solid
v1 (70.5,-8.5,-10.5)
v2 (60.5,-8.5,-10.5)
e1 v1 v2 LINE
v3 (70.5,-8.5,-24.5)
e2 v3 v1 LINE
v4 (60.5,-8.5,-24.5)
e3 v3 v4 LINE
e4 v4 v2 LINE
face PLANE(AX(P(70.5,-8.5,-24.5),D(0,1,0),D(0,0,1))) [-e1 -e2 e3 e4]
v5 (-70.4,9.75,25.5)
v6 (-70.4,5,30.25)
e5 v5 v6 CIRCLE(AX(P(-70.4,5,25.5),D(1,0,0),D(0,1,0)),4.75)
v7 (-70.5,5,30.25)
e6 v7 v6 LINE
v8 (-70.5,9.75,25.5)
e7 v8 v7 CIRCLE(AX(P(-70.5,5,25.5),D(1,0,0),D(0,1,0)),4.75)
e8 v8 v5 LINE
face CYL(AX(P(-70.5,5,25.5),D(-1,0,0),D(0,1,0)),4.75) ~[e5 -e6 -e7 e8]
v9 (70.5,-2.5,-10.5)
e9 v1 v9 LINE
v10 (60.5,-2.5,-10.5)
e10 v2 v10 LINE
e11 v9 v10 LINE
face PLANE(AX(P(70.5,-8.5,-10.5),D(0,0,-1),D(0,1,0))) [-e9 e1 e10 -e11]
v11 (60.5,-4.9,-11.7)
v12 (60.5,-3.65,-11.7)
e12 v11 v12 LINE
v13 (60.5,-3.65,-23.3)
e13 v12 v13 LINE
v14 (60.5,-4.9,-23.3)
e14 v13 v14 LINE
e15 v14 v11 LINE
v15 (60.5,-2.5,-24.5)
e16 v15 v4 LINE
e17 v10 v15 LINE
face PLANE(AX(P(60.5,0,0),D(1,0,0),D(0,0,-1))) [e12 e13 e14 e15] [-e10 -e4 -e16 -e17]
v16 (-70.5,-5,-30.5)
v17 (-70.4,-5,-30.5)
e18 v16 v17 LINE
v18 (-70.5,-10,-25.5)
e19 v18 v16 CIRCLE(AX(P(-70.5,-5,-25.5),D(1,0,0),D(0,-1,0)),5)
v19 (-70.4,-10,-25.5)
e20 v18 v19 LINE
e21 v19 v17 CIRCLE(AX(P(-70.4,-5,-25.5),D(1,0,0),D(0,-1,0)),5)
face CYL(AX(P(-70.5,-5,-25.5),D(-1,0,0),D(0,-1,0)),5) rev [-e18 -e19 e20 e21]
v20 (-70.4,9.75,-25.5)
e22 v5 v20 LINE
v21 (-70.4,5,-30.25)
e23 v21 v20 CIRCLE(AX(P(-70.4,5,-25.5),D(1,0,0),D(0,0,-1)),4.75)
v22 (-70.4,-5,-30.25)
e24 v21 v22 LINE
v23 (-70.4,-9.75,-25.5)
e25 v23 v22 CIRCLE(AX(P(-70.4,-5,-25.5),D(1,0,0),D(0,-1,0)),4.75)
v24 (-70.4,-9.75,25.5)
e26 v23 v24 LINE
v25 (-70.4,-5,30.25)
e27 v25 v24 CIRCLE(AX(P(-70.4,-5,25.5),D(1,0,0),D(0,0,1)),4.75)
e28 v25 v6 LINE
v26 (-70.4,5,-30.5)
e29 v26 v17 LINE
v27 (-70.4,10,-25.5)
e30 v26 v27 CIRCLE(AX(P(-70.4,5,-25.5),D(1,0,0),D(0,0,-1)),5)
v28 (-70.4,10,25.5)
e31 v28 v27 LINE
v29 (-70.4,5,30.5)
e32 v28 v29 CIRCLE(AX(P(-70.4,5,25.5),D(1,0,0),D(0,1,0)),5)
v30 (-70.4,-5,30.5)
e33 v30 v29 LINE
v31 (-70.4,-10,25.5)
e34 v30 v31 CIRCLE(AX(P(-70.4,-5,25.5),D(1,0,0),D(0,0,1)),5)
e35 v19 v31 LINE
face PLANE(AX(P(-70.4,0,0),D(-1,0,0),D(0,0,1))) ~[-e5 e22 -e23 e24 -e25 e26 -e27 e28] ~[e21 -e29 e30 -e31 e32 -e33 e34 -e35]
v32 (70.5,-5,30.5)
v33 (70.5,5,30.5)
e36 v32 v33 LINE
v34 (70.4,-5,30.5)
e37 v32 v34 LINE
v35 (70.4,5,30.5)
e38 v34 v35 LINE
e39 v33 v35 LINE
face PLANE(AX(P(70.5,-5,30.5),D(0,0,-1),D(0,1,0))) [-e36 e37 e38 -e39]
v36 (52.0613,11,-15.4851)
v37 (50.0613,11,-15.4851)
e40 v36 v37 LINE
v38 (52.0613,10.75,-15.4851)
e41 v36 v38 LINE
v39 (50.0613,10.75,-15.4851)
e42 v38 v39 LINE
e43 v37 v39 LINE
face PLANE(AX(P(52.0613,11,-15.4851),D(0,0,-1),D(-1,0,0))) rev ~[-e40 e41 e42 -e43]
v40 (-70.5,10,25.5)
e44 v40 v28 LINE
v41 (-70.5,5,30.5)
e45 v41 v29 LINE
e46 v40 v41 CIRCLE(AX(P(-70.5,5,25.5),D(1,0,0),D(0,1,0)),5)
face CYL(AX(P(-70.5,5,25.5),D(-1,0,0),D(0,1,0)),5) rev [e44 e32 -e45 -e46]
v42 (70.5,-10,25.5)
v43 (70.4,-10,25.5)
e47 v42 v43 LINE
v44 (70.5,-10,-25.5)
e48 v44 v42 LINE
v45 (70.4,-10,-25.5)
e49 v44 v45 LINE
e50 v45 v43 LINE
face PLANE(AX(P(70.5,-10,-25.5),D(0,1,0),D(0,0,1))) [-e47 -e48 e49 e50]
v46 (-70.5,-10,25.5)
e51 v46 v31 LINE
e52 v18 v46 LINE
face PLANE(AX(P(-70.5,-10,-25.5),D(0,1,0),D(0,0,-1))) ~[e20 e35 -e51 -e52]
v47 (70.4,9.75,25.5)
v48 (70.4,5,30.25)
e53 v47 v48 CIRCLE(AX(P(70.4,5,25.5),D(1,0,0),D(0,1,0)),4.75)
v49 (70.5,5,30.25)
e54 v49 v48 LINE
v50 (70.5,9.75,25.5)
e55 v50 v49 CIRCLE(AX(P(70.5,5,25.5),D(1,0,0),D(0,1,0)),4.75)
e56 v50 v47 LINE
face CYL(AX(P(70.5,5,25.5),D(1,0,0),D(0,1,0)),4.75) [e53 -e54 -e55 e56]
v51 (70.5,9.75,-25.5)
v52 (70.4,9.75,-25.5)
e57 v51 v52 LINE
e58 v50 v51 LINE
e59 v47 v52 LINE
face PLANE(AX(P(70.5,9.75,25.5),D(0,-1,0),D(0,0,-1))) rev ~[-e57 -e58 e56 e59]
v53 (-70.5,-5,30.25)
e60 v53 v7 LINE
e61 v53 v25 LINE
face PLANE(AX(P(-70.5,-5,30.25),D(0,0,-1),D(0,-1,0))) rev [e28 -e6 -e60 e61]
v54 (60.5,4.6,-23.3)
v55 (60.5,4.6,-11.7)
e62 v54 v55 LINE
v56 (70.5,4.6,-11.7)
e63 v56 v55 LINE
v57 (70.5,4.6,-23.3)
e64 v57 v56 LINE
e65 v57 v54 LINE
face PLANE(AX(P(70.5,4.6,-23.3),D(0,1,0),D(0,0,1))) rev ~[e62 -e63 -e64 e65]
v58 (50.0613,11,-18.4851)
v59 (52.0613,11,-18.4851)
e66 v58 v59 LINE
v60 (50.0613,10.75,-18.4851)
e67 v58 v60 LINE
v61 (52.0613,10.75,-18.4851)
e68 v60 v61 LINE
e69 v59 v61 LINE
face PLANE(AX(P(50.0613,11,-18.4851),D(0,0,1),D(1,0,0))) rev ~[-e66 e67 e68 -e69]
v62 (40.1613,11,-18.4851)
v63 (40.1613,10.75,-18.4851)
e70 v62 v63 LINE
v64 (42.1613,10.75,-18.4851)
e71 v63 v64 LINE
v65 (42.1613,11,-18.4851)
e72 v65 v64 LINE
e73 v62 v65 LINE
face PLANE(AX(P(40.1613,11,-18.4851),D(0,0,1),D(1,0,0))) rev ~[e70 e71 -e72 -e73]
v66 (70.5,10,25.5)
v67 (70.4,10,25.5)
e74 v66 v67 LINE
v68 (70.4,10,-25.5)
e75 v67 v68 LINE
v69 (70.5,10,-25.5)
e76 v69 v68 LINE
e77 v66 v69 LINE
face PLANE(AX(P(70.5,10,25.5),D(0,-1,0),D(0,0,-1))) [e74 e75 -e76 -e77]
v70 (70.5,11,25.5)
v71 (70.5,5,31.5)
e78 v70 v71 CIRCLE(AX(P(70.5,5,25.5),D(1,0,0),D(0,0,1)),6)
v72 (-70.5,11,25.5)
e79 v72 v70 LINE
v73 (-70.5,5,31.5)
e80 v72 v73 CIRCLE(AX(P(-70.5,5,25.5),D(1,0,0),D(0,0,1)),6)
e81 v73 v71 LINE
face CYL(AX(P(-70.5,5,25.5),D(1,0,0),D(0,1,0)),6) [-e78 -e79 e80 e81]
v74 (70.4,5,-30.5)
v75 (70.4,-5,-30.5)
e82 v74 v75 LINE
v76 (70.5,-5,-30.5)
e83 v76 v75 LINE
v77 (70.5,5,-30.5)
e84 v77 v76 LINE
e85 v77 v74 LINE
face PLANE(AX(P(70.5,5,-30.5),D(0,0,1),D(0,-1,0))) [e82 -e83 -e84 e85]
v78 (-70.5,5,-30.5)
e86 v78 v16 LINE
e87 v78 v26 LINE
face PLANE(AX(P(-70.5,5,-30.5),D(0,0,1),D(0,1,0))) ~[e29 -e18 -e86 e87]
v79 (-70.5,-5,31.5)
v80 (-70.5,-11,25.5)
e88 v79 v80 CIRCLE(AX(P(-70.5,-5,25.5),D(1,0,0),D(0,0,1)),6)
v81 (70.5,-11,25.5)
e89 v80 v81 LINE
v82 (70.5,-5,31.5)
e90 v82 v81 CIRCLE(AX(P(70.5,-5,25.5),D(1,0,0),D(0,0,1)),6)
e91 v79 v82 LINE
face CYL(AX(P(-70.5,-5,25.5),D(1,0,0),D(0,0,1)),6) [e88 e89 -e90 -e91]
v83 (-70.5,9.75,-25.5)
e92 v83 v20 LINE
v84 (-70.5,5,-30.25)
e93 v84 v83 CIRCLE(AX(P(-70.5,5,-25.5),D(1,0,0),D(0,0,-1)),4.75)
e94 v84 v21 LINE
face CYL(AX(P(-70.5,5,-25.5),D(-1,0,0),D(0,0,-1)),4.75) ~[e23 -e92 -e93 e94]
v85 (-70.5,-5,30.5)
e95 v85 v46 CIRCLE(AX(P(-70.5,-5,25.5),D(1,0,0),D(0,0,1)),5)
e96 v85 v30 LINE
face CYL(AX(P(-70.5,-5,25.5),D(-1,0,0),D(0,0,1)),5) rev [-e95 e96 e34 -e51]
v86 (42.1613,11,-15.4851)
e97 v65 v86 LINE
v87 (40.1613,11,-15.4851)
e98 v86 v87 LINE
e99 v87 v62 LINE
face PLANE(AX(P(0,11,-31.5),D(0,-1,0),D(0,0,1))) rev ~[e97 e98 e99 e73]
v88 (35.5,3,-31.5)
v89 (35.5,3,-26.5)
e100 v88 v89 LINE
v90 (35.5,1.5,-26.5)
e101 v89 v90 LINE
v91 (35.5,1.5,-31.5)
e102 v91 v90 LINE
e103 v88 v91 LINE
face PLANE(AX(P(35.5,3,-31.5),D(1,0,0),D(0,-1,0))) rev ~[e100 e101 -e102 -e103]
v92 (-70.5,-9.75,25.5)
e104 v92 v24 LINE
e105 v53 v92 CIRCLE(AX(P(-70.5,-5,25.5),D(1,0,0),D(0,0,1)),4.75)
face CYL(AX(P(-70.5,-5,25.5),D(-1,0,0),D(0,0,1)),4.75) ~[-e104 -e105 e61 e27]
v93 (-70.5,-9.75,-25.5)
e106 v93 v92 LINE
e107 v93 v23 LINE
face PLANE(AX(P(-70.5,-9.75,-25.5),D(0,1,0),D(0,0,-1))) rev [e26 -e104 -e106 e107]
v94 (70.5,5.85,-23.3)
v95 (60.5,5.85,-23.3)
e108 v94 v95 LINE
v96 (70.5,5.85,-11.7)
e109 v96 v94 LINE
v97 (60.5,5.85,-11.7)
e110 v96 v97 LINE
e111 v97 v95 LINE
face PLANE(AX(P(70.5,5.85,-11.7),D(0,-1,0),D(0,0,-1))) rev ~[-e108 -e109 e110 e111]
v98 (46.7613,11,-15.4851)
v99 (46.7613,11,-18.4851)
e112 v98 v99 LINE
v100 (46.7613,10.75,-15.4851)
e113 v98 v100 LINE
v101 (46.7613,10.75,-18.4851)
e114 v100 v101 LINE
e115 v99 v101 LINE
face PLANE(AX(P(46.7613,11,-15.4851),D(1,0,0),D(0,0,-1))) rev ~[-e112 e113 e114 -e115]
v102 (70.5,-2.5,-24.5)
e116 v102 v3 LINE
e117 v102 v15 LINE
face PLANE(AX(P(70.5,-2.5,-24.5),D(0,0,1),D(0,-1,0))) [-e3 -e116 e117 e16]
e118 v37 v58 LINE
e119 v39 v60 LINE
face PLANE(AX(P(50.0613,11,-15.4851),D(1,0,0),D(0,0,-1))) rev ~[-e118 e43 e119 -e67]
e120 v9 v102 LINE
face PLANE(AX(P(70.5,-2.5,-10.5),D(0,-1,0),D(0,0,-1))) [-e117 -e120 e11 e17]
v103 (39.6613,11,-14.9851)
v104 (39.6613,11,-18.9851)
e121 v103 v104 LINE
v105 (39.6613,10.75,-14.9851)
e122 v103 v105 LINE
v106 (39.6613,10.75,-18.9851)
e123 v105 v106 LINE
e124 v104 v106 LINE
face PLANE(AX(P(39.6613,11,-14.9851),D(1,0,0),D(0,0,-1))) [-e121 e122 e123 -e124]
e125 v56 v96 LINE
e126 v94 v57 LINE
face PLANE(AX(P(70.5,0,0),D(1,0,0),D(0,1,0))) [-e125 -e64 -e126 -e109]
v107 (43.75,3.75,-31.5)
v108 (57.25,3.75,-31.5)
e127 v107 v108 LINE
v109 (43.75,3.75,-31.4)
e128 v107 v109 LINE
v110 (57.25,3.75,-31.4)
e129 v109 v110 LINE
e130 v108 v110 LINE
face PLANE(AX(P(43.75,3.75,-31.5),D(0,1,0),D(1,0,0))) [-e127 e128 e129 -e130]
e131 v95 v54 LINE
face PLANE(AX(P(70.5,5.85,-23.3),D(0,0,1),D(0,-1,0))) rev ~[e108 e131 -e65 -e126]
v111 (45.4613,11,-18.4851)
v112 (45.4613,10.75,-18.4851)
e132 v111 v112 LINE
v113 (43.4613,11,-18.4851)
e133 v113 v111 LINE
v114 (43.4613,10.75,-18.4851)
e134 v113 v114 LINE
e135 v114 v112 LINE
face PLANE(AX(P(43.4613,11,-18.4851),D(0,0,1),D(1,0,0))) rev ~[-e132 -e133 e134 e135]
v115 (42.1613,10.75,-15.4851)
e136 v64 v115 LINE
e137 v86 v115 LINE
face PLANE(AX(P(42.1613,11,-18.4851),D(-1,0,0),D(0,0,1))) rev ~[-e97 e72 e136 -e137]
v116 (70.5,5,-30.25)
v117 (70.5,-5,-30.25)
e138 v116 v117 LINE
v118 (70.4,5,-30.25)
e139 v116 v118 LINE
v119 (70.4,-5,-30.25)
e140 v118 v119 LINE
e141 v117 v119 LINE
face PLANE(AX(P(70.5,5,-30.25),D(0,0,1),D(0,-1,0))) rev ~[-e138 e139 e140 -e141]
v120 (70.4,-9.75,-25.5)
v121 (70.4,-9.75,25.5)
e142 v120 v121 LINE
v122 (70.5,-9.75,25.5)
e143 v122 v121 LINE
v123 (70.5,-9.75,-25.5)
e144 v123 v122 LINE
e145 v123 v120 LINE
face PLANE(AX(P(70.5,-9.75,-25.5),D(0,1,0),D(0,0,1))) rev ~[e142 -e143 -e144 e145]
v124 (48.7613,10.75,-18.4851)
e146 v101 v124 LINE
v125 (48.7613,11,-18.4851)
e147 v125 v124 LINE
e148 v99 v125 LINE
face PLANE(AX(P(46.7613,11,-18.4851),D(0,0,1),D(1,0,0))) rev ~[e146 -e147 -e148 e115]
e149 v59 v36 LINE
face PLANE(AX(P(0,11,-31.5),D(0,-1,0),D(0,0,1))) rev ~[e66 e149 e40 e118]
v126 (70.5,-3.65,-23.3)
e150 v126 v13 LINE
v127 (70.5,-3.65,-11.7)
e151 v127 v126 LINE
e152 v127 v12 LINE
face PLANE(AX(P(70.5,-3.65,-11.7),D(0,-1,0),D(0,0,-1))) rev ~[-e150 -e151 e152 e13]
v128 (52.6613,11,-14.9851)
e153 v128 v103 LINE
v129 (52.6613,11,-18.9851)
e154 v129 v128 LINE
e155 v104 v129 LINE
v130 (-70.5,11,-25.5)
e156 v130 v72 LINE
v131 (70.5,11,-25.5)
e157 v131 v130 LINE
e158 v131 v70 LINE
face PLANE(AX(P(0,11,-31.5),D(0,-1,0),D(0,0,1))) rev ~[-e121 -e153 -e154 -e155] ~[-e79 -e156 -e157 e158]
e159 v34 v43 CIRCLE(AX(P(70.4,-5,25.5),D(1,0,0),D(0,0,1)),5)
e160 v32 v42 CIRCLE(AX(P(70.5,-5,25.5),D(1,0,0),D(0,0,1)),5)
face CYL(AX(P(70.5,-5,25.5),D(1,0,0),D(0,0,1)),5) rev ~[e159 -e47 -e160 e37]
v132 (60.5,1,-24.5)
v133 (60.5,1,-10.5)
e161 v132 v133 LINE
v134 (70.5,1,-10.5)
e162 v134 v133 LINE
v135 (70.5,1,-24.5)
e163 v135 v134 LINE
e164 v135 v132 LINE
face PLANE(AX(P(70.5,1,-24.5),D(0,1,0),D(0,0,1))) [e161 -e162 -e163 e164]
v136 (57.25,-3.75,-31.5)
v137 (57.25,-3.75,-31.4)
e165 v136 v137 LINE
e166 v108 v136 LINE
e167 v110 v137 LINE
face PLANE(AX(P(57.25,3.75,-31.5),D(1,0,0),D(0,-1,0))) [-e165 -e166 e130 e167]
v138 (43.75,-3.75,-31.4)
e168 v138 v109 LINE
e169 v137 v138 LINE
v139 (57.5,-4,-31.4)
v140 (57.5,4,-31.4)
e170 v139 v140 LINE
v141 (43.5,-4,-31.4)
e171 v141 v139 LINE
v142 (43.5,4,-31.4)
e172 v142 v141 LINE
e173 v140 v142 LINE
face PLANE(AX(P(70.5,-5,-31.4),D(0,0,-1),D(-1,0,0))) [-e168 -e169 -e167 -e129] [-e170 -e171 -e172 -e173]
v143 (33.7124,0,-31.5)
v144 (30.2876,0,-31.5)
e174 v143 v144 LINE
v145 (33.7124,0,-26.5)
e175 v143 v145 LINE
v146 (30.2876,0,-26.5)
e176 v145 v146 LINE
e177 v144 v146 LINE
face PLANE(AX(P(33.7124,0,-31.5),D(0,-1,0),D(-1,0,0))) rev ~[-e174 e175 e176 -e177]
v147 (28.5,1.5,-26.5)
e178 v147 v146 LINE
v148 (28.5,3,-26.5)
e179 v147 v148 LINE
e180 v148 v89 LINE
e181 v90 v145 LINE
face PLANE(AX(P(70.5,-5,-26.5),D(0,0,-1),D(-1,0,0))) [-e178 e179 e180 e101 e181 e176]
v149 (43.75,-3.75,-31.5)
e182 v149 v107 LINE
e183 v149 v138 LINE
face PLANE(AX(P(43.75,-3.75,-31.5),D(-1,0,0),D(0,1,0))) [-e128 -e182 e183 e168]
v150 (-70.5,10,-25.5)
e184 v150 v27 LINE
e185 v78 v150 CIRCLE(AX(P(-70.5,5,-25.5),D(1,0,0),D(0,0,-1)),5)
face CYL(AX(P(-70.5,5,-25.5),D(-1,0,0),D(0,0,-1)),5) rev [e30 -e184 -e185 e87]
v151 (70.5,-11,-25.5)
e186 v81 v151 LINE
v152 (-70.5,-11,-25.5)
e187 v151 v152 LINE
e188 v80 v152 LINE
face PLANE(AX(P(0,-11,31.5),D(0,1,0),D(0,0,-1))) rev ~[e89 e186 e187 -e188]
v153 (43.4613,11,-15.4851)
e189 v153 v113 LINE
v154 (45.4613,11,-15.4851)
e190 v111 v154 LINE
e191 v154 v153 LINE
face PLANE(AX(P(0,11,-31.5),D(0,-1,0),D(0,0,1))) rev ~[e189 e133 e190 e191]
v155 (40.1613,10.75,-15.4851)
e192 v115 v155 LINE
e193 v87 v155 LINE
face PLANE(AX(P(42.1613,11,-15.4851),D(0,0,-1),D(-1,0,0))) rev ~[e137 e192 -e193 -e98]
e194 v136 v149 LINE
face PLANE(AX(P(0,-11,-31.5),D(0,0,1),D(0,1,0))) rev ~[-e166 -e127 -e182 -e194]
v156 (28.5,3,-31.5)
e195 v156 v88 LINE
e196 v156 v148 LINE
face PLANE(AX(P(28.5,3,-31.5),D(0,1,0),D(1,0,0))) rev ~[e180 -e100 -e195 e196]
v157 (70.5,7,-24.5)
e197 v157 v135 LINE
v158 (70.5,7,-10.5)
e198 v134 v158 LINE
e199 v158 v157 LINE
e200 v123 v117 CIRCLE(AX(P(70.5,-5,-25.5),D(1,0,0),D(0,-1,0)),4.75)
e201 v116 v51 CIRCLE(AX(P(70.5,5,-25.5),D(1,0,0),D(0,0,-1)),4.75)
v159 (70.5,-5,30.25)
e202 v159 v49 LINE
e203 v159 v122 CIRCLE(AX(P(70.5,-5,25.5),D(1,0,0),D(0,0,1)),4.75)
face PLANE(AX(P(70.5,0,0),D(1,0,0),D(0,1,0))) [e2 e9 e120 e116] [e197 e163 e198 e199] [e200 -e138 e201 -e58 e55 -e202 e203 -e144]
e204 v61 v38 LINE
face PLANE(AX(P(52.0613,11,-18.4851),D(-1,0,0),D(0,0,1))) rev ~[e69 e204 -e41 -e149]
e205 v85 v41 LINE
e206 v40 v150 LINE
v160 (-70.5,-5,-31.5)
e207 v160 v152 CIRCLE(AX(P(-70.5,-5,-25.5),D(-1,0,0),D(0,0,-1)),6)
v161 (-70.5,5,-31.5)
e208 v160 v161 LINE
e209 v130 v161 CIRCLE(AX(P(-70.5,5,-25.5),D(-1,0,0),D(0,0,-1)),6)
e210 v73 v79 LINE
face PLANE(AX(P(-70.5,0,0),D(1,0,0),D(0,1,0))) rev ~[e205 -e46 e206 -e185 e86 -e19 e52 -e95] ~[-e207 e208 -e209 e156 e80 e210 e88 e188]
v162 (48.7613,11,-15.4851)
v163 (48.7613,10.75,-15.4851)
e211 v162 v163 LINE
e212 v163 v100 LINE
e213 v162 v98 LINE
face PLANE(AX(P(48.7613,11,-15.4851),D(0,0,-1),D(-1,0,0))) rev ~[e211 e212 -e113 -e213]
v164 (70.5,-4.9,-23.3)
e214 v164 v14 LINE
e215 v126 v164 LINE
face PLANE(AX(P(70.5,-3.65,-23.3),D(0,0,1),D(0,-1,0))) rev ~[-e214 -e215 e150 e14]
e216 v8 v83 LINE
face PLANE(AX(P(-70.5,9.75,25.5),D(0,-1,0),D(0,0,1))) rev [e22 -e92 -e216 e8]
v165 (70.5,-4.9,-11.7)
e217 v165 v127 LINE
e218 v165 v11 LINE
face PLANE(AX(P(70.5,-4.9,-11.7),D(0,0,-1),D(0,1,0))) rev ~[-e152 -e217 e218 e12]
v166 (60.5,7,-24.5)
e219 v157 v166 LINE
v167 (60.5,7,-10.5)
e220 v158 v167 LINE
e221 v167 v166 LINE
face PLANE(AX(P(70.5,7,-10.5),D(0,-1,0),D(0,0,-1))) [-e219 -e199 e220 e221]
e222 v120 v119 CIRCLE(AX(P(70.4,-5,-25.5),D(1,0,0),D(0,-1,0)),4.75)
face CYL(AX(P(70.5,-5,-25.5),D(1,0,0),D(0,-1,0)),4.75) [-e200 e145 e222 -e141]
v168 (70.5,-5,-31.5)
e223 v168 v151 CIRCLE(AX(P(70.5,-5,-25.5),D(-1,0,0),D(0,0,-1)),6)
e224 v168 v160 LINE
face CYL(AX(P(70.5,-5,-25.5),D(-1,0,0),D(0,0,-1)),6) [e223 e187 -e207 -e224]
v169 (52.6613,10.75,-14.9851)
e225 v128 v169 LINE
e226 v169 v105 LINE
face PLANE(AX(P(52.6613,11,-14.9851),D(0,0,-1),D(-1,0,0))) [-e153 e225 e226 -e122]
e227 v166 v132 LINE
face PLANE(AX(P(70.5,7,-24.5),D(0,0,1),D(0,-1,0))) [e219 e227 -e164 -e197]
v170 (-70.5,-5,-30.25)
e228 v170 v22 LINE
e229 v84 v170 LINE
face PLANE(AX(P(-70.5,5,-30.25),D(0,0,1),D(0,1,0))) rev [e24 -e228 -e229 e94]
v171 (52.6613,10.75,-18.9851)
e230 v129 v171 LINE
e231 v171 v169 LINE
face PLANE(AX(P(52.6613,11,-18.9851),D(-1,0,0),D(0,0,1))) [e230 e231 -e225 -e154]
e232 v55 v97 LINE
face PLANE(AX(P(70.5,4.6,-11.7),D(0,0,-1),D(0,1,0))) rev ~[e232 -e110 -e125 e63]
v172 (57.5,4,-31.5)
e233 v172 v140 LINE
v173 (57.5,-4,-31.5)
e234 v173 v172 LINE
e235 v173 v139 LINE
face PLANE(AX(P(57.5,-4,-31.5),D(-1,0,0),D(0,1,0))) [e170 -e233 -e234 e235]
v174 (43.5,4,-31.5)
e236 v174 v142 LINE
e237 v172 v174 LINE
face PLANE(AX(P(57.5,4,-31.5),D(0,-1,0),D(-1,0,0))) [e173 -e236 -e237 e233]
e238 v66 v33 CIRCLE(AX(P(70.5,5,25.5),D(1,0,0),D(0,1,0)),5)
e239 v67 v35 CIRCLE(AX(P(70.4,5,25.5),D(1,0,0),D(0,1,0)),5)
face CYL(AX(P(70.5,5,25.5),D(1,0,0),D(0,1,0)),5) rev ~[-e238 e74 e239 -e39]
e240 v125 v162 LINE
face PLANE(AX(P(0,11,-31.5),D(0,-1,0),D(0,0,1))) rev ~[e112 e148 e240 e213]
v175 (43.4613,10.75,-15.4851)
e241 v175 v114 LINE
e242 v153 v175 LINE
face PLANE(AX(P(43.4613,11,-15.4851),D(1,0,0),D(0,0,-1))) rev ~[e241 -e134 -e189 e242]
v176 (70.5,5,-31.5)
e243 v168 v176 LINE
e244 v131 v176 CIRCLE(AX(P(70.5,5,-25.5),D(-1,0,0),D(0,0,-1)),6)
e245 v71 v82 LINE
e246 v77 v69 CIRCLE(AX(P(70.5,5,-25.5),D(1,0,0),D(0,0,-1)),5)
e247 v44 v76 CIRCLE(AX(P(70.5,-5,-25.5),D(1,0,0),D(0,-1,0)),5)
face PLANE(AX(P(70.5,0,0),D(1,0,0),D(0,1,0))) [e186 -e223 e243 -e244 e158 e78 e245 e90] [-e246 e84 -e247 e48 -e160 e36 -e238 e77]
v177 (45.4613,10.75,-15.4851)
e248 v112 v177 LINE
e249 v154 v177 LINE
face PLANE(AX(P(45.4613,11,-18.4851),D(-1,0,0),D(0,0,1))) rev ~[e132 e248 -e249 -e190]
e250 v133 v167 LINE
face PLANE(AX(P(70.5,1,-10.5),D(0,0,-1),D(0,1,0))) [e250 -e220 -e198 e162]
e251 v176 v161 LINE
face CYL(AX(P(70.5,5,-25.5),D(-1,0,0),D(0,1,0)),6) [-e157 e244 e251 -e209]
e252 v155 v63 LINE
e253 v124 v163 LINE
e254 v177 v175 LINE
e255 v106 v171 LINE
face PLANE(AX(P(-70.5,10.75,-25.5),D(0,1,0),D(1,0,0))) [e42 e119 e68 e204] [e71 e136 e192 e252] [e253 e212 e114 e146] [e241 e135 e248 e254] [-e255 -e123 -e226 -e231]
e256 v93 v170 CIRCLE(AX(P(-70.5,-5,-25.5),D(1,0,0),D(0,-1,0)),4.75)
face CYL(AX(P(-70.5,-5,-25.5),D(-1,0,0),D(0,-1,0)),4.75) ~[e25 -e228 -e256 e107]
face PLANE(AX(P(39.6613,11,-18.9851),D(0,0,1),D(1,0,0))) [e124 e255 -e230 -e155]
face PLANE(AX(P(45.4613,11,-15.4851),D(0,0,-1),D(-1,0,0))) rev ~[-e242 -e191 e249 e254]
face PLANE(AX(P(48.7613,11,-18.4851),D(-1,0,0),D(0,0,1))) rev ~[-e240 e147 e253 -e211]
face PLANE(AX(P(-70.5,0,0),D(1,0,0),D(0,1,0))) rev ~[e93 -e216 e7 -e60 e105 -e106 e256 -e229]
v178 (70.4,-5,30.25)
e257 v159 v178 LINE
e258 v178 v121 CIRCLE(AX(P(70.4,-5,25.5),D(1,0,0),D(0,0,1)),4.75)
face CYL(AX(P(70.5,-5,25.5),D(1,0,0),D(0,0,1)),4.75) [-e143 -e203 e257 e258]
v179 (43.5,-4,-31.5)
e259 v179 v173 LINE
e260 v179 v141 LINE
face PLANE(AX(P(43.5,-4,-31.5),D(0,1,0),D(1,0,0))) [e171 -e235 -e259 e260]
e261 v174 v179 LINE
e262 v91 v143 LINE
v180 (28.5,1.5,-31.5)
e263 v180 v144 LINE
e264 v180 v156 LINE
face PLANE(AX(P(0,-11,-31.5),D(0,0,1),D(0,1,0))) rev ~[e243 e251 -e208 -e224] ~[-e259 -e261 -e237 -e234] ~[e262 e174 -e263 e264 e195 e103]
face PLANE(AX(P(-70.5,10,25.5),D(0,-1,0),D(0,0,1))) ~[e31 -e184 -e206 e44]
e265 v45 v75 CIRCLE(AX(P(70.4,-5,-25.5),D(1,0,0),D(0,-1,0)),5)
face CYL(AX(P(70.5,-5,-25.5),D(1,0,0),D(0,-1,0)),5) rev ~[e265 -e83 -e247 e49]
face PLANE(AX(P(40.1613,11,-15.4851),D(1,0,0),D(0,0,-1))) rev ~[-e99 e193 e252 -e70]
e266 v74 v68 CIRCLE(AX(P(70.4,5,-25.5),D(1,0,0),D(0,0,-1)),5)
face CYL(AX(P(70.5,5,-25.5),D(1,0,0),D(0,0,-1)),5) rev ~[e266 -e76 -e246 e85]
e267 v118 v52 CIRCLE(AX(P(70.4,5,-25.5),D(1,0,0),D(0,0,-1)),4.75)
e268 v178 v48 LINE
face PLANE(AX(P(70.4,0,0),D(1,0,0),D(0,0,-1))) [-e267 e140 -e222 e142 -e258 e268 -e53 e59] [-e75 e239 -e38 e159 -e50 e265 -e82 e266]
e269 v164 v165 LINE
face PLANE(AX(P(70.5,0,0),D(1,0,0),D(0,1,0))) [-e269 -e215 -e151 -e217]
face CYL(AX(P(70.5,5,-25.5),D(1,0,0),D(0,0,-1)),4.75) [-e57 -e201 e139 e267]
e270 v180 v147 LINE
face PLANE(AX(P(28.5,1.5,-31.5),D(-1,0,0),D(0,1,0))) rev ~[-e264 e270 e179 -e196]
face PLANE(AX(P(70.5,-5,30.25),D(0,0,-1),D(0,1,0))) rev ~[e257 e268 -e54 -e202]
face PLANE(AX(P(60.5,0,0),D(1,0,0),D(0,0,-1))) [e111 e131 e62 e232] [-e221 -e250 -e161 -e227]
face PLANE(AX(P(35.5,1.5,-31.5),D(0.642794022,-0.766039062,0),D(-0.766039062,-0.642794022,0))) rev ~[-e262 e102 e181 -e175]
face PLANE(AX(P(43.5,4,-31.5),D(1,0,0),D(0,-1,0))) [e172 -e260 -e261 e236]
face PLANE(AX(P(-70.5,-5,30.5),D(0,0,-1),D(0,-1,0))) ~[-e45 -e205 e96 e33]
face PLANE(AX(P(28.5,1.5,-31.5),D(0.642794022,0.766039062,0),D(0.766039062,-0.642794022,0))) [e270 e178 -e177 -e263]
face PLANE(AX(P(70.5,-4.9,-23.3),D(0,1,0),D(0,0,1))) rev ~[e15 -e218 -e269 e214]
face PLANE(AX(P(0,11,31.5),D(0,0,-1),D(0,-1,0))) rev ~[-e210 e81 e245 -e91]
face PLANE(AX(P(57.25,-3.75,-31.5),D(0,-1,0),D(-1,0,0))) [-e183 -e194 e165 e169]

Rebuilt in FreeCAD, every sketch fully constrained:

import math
import FreeCAD as App
import Part
import Sketcher
Q = App.Units.Quantity


def edges_at(feature, points):
    """Names of the edges that pass closest to the given points."""
    edges = feature.Shape.Edges
    near = lambda p: min(range(len(edges)), key=lambda i: edges[i].distToShape(Part.Vertex(*p))[0])
    return sorted({f"Edge{near(p) + 1}" for p in points})

doc = App.newDocument("Part")
body = doc.addObject("PartDesign::Body", "Body")

# Sketch on YZ plane
sketch1 = body.newObject("Sketcher::SketchObject", "Sketch")
sketch1.AttachmentSupport = (doc.getObject("YZ_Plane"), [""])
sketch1.MapMode = "FlatFace"
sketch1.addGeometry(Part.LineSegment(App.Vector(11, -32, 0), App.Vector(11, 32, 0)), False)
sketch1.addGeometry(Part.LineSegment(App.Vector(11, 32, 0), App.Vector(-11, 32, 0)), False)
sketch1.addGeometry(Part.LineSegment(App.Vector(-11, 32, 0), App.Vector(-11, -32, 0)), False)
sketch1.addGeometry(Part.LineSegment(App.Vector(-11, -32, 0), App.Vector(11, -32, 0)), False)
sketch1.addConstraint(Sketcher.Constraint("Coincident", 0, 2, 1, 1))
sketch1.addConstraint(Sketcher.Constraint("Coincident", 1, 2, 2, 1))
sketch1.addConstraint(Sketcher.Constraint("Coincident", 2, 2, 3, 1))
sketch1.addConstraint(Sketcher.Constraint("Coincident", 3, 2, 0, 1))
sketch1.addConstraint(Sketcher.Constraint("Vertical", 0))
sketch1.addConstraint(Sketcher.Constraint("Horizontal", 1))
sketch1.addConstraint(Sketcher.Constraint("Vertical", 2))
sketch1.addConstraint(Sketcher.Constraint("Horizontal", 3))
sketch1.addConstraint(Sketcher.Constraint("Symmetric", 0, 2, 2, 2, -1, 1))
sketch1.addConstraint(Sketcher.Constraint("DistanceX", 1, 2, 1, 1, Q("22 mm")))
sketch1.addConstraint(Sketcher.Constraint("DistanceY", 0, 1, 0, 2, Q("63 mm")))
pad1 = body.newObject("PartDesign::Pad", "Pad")
pad1.Profile = sketch1
pad1.Length = 141
pad1.Midplane = True
doc.recompute()

fillet = body.newObject("PartDesign::Fillet", "Fillet")
fillet.Base = (pad1, edges_at(pad1, [
    (0, 11, 31.5),
    (0, 11, -31.5),
    (0, -11, 31.5),
    (0, -11, -31.5),
]))
fillet.Radius = 6

# Sketch on YZ plane
sketch2 = body.newObject("Sketcher::SketchObject", "Sketch001")
sketch2.AttachmentSupport = (doc.getObject("YZ_Plane"), [""])
sketch2.MapMode = "FlatFace"
sketch2.AttachmentOffset = App.Placement(App.Vector(0, 0, 70.5), App.Rotation())
sketch2.addGeometry(Part.LineSegment(App.Vector(7, -24.5, 0), App.Vector(7, -10.5, 0)), False)
sketch2.addGeometry(Part.LineSegment(App.Vector(7, -10.5, 0), App.Vector(1, -10.5, 0)), False)
sketch2.addGeometry(Part.LineSegment(App.Vector(1, -10.5, 0), App.Vector(1, -24.5, 0)), False)
sketch2.addGeometry(Part.LineSegment(App.Vector(1, -24.5, 0), App.Vector(7, -24.5, 0)), False)
sketch2.addGeometry(Part.LineSegment(App.Vector(4.6, -11.7, 0), App.Vector(5.8, -11.7, 0)), False)
sketch2.addGeometry(Part.LineSegment(App.Vector(5.8, -11.7, 0), App.Vector(5.8, -23.3, 0)), False)
sketch2.addGeometry(Part.LineSegment(App.Vector(5.8, -23.3, 0), App.Vector(4.6, -23.3, 0)), False)
sketch2.addGeometry(Part.LineSegment(App.Vector(4.6, -23.3, 0), App.Vector(4.6, -11.7, 0)), False)
sketch2.addGeometry(Part.LineSegment(App.Vector(-2.5, -24.5, 0), App.Vector(-2.5, -10.5, 0)), False)
sketch2.addGeometry(Part.LineSegment(App.Vector(-2.5, -10.5, 0), App.Vector(-8.5, -10.5, 0)), False)
sketch2.addGeometry(Part.LineSegment(App.Vector(-8.5, -10.5, 0), App.Vector(-8.5, -24.5, 0)), False)
sketch2.addGeometry(Part.LineSegment(App.Vector(-8.5, -24.5, 0), App.Vector(-2.5, -24.5, 0)), False)
sketch2.addGeometry(Part.LineSegment(App.Vector(-4.9, -11.7, 0), App.Vector(-3.6, -11.7, 0)), False)
sketch2.addGeometry(Part.LineSegment(App.Vector(-3.6, -11.7, 0), App.Vector(-3.6, -23.3, 0)), False)
sketch2.addGeometry(Part.LineSegment(App.Vector(-3.6, -23.3, 0), App.Vector(-4.9, -23.3, 0)), False)
sketch2.addGeometry(Part.LineSegment(App.Vector(-4.9, -23.3, 0), App.Vector(-4.9, -11.7, 0)), False)
sketch2.addConstraint(Sketcher.Constraint("Coincident", 0, 2, 1, 1))
sketch2.addConstraint(Sketcher.Constraint("Coincident", 1, 2, 2, 1))
sketch2.addConstraint(Sketcher.Constraint("Coincident", 2, 2, 3, 1))
sketch2.addConstraint(Sketcher.Constraint("Coincident", 3, 2, 0, 1))
sketch2.addConstraint(Sketcher.Constraint("Coincident", 4, 2, 5, 1))
sketch2.addConstraint(Sketcher.Constraint("Coincident", 5, 2, 6, 1))
sketch2.addConstraint(Sketcher.Constraint("Coincident", 6, 2, 7, 1))
sketch2.addConstraint(Sketcher.Constraint("Coincident", 7, 2, 4, 1))
sketch2.addConstraint(Sketcher.Constraint("Coincident", 8, 2, 9, 1))
sketch2.addConstraint(Sketcher.Constraint("Coincident", 9, 2, 10, 1))
sketch2.addConstraint(Sketcher.Constraint("Coincident", 10, 2, 11, 1))
sketch2.addConstraint(Sketcher.Constraint("Coincident", 11, 2, 8, 1))
sketch2.addConstraint(Sketcher.Constraint("Coincident", 12, 2, 13, 1))
sketch2.addConstraint(Sketcher.Constraint("Coincident", 13, 2, 14, 1))
sketch2.addConstraint(Sketcher.Constraint("Coincident", 14, 2, 15, 1))
sketch2.addConstraint(Sketcher.Constraint("Coincident", 15, 2, 12, 1))
sketch2.addConstraint(Sketcher.Constraint("Vertical", 0))
sketch2.addConstraint(Sketcher.Constraint("Horizontal", 1))
sketch2.addConstraint(Sketcher.Constraint("Vertical", 2))
sketch2.addConstraint(Sketcher.Constraint("Horizontal", 3))
sketch2.addConstraint(Sketcher.Constraint("Horizontal", 4))
sketch2.addConstraint(Sketcher.Constraint("Vertical", 5))
sketch2.addConstraint(Sketcher.Constraint("Horizontal", 6))
sketch2.addConstraint(Sketcher.Constraint("Vertical", 7))
sketch2.addConstraint(Sketcher.Constraint("Vertical", 8))
sketch2.addConstraint(Sketcher.Constraint("Horizontal", 9))
sketch2.addConstraint(Sketcher.Constraint("Vertical", 10))
sketch2.addConstraint(Sketcher.Constraint("Horizontal", 11))
sketch2.addConstraint(Sketcher.Constraint("Horizontal", 12))
sketch2.addConstraint(Sketcher.Constraint("Vertical", 13))
sketch2.addConstraint(Sketcher.Constraint("Horizontal", 14))
sketch2.addConstraint(Sketcher.Constraint("Vertical", 15))
sketch2.addConstraint(Sketcher.Constraint("Horizontal", 1, 2, 8, 2))
sketch2.addConstraint(Sketcher.Constraint("Horizontal", 3, 2, 10, 2))
sketch2.addConstraint(Sketcher.Constraint("Horizontal", 7, 2, 12, 2))
sketch2.addConstraint(Sketcher.Constraint("Horizontal", 6, 2, 13, 2))
sketch2.addConstraint(Sketcher.Constraint("Equal", 3, 9))
sketch2.addConstraint(Sketcher.Constraint("Equal", 6, 12))
sketch2.addConstraint(Sketcher.Constraint("DistanceX", 1, 2, 1, 1, Q("6 mm")))
sketch2.addConstraint(Sketcher.Constraint("DistanceY", 0, 1, 0, 2, Q("14 mm")))
sketch2.addConstraint(Sketcher.Constraint("DistanceX", -1, 1, 0, 2, Q("7 mm")))
sketch2.addConstraint(Sketcher.Constraint("DistanceY", 4, 2, 0, 2, Q("1.2 mm")))
sketch2.addConstraint(Sketcher.Constraint("DistanceY", 3, 2, 5, 2, Q("1.2 mm")))
sketch2.addConstraint(Sketcher.Constraint("DistanceX", 2, 2, 6, 2, Q("3.6 mm")))
sketch2.addConstraint(Sketcher.Constraint("DistanceX", 8, 2, 1, 2, Q("3.5 mm")))
sketch2.addConstraint(Sketcher.Constraint("DistanceX", 10, 2, 14, 2, Q("3.6 mm")))
sketch2.addConstraint(Sketcher.Constraint("DistanceX", 4, 2, 0, 2, Q("1.15 mm")))
sketch2.addConstraint(Sketcher.Constraint("DistanceY", 0, 2, -1, 1, Q("10.5 mm")))
pocket1 = body.newObject("PartDesign::Pocket", "Pocket")
pocket1.Profile = sketch2
pocket1.Length = 10

# Sketch on XZ plane
sketch3 = body.newObject("Sketcher::SketchObject", "Sketch002")
sketch3.AttachmentSupport = (doc.getObject("XZ_Plane"), [""])
sketch3.MapMode = "FlatFace"
sketch3.AttachmentOffset = App.Placement(App.Vector(0, 0, -11), App.Rotation())
sketch3.addGeometry(Part.LineSegment(App.Vector(52.7, -19, 0), App.Vector(39.7, -19, 0)), False)
sketch3.addGeometry(Part.LineSegment(App.Vector(39.7, -19, 0), App.Vector(39.7, -15, 0)), False)
sketch3.addGeometry(Part.LineSegment(App.Vector(39.7, -15, 0), App.Vector(52.7, -15, 0)), False)
sketch3.addGeometry(Part.LineSegment(App.Vector(52.7, -15, 0), App.Vector(52.7, -19, 0)), False)
sketch3.addGeometry(Part.LineSegment(App.Vector(40.2, -15.5, 0), App.Vector(40.2, -18.5, 0)), False)
sketch3.addGeometry(Part.LineSegment(App.Vector(40.2, -18.5, 0), App.Vector(42.2, -18.5, 0)), False)
sketch3.addGeometry(Part.LineSegment(App.Vector(42.2, -18.5, 0), App.Vector(42.2, -15.5, 0)), False)
sketch3.addGeometry(Part.LineSegment(App.Vector(42.2, -15.5, 0), App.Vector(40.2, -15.5, 0)), False)
sketch3.addGeometry(Part.LineSegment(App.Vector(45.5, -18.5, 0), App.Vector(45.5, -15.5, 0)), False)
sketch3.addGeometry(Part.LineSegment(App.Vector(45.5, -15.5, 0), App.Vector(43.5, -15.5, 0)), False)
sketch3.addGeometry(Part.LineSegment(App.Vector(43.5, -15.5, 0), App.Vector(43.5, -18.5, 0)), False)
sketch3.addGeometry(Part.LineSegment(App.Vector(43.5, -18.5, 0), App.Vector(45.5, -18.5, 0)), False)
sketch3.addGeometry(Part.LineSegment(App.Vector(48.8, -18.5, 0), App.Vector(48.8, -15.5, 0)), False)
sketch3.addGeometry(Part.LineSegment(App.Vector(48.8, -15.5, 0), App.Vector(46.8, -15.5, 0)), False)
sketch3.addGeometry(Part.LineSegment(App.Vector(46.8, -15.5, 0), App.Vector(46.8, -18.5, 0)), False)
sketch3.addGeometry(Part.LineSegment(App.Vector(46.8, -18.5, 0), App.Vector(48.8, -18.5, 0)), False)
sketch3.addGeometry(Part.LineSegment(App.Vector(52.1, -18.5, 0), App.Vector(52.1, -15.5, 0)), False)
sketch3.addGeometry(Part.LineSegment(App.Vector(52.1, -15.5, 0), App.Vector(50.1, -15.5, 0)), False)
sketch3.addGeometry(Part.LineSegment(App.Vector(50.1, -15.5, 0), App.Vector(50.1, -18.5, 0)), False)
sketch3.addGeometry(Part.LineSegment(App.Vector(50.1, -18.5, 0), App.Vector(52.1, -18.5, 0)), False)
sketch3.addConstraint(Sketcher.Constraint("Coincident", 0, 2, 1, 1))
sketch3.addConstraint(Sketcher.Constraint("Coincident", 1, 2, 2, 1))
sketch3.addConstraint(Sketcher.Constraint("Coincident", 2, 2, 3, 1))
sketch3.addConstraint(Sketcher.Constraint("Coincident", 3, 2, 0, 1))
sketch3.addConstraint(Sketcher.Constraint("Coincident", 4, 2, 5, 1))
sketch3.addConstraint(Sketcher.Constraint("Coincident", 5, 2, 6, 1))
sketch3.addConstraint(Sketcher.Constraint("Coincident", 6, 2, 7, 1))
sketch3.addConstraint(Sketcher.Constraint("Coincident", 7, 2, 4, 1))
sketch3.addConstraint(Sketcher.Constraint("Coincident", 8, 2, 9, 1))
sketch3.addConstraint(Sketcher.Constraint("Coincident", 9, 2, 10, 1))
sketch3.addConstraint(Sketcher.Constraint("Coincident", 10, 2, 11, 1))
sketch3.addConstraint(Sketcher.Constraint("Coincident", 11, 2, 8, 1))
sketch3.addConstraint(Sketcher.Constraint("Coincident", 12, 2, 13, 1))
sketch3.addConstraint(Sketcher.Constraint("Coincident", 13, 2, 14, 1))
sketch3.addConstraint(Sketcher.Constraint("Coincident", 14, 2, 15, 1))
sketch3.addConstraint(Sketcher.Constraint("Coincident", 15, 2, 12, 1))
sketch3.addConstraint(Sketcher.Constraint("Coincident", 16, 2, 17, 1))
sketch3.addConstraint(Sketcher.Constraint("Coincident", 17, 2, 18, 1))
sketch3.addConstraint(Sketcher.Constraint("Coincident", 18, 2, 19, 1))
sketch3.addConstraint(Sketcher.Constraint("Coincident", 19, 2, 16, 1))
sketch3.addConstraint(Sketcher.Constraint("Horizontal", 0))
sketch3.addConstraint(Sketcher.Constraint("Vertical", 1))
sketch3.addConstraint(Sketcher.Constraint("Horizontal", 2))
sketch3.addConstraint(Sketcher.Constraint("Vertical", 3))
sketch3.addConstraint(Sketcher.Constraint("Vertical", 4))
sketch3.addConstraint(Sketcher.Constraint("Horizontal", 5))
sketch3.addConstraint(Sketcher.Constraint("Vertical", 6))
sketch3.addConstraint(Sketcher.Constraint("Horizontal", 7))
sketch3.addConstraint(Sketcher.Constraint("Vertical", 8))
sketch3.addConstraint(Sketcher.Constraint("Horizontal", 9))
sketch3.addConstraint(Sketcher.Constraint("Vertical", 10))
sketch3.addConstraint(Sketcher.Constraint("Horizontal", 11))
sketch3.addConstraint(Sketcher.Constraint("Vertical", 12))
sketch3.addConstraint(Sketcher.Constraint("Horizontal", 13))
sketch3.addConstraint(Sketcher.Constraint("Vertical", 14))
sketch3.addConstraint(Sketcher.Constraint("Horizontal", 15))
sketch3.addConstraint(Sketcher.Constraint("Vertical", 16))
sketch3.addConstraint(Sketcher.Constraint("Horizontal", 17))
sketch3.addConstraint(Sketcher.Constraint("Vertical", 18))
sketch3.addConstraint(Sketcher.Constraint("Horizontal", 19))
sketch3.addConstraint(Sketcher.Constraint("Horizontal", 7, 2, 8, 2))
sketch3.addConstraint(Sketcher.Constraint("Horizontal", 5, 2, 10, 2))
sketch3.addConstraint(Sketcher.Constraint("Horizontal", 9, 2, 12, 2))
sketch3.addConstraint(Sketcher.Constraint("Horizontal", 11, 2, 14, 2))
sketch3.addConstraint(Sketcher.Constraint("Horizontal", 13, 2, 16, 2))
sketch3.addConstraint(Sketcher.Constraint("Horizontal", 15, 2, 18, 2))
sketch3.addConstraint(Sketcher.Constraint("Equal", 7, 9))
sketch3.addConstraint(Sketcher.Constraint("Equal", 11, 13))
sketch3.addConstraint(Sketcher.Constraint("Equal", 15, 17))
sketch3.addConstraint(Sketcher.Constraint("DistanceX", 0, 2, 0, 1, Q("13 mm")))
sketch3.addConstraint(Sketcher.Constraint("DistanceX", 5, 1, 5, 2, Q("2 mm")))
sketch3.addConstraint(Sketcher.Constraint("DistanceY", 1, 1, 1, 2, Q("4 mm")))
sketch3.addConstraint(Sketcher.Constraint("DistanceY", 4, 2, 4, 1, Q("3 mm")))
sketch3.addConstraint(Sketcher.Constraint("DistanceX", 0, 2, 4, 2, Q("0.5 mm")))
sketch3.addConstraint(Sketcher.Constraint("DistanceY", 0, 2, 4, 2, Q("0.5 mm")))
sketch3.addConstraint(Sketcher.Constraint("DistanceX", 6, 2, 8, 2, Q("3.3 mm")))
sketch3.addConstraint(Sketcher.Constraint("DistanceX", 8, 2, 12, 2, Q("3.3 mm")))
sketch3.addConstraint(Sketcher.Constraint("DistanceX", 12, 2, 16, 2, Q("3.3 mm")))
sketch3.addConstraint(Sketcher.Constraint("DistanceY", 0, 2, -1, 1, Q("18.985 mm")))
sketch3.addConstraint(Sketcher.Constraint("DistanceX", -1, 1, 0, 2, Q("39.6613 mm")))
pocket2 = body.newObject("PartDesign::Pocket", "Pocket001")
pocket2.Profile = sketch3
pocket2.Length = 0.25
pocket2.Reversed = True

# Sketch on XY plane
sketch4 = body.newObject("Sketcher::SketchObject", "Sketch003")
sketch4.AttachmentSupport = (doc.getObject("XY_Plane"), [""])
sketch4.MapMode = "FlatFace"
sketch4.AttachmentOffset = App.Placement(App.Vector(0, 0, -31.5), App.Rotation())
sketch4.addGeometry(Part.LineSegment(App.Vector(35.5, 1.5, 0), App.Vector(33.7, 0, 0)), False)
sketch4.addGeometry(Part.LineSegment(App.Vector(33.7, 0, 0), App.Vector(30.3, 0, 0)), False)
sketch4.addGeometry(Part.LineSegment(App.Vector(30.3, 0, 0), App.Vector(28.5, 1.5, 0)), False)
sketch4.addGeometry(Part.LineSegment(App.Vector(28.5, 1.5, 0), App.Vector(28.5, 3, 0)), False)
sketch4.addGeometry(Part.LineSegment(App.Vector(28.5, 3, 0), App.Vector(35.5, 3, 0)), False)
sketch4.addGeometry(Part.LineSegment(App.Vector(35.5, 3, 0), App.Vector(35.5, 1.5, 0)), False)
sketch4.addConstraint(Sketcher.Constraint("Coincident", 0, 2, 1, 1))
sketch4.addConstraint(Sketcher.Constraint("Coincident", 1, 2, 2, 1))
sketch4.addConstraint(Sketcher.Constraint("Coincident", 2, 2, 3, 1))
sketch4.addConstraint(Sketcher.Constraint("Coincident", 3, 2, 4, 1))
sketch4.addConstraint(Sketcher.Constraint("Coincident", 4, 2, 5, 1))
sketch4.addConstraint(Sketcher.Constraint("Coincident", 5, 2, 0, 1))
sketch4.addConstraint(Sketcher.Constraint("Horizontal", 1))
sketch4.addConstraint(Sketcher.Constraint("Vertical", 3))
sketch4.addConstraint(Sketcher.Constraint("Horizontal", 4))
sketch4.addConstraint(Sketcher.Constraint("Vertical", 5))
sketch4.addConstraint(Sketcher.Constraint("PointOnObject", 0, 2, -1))
sketch4.addConstraint(Sketcher.Constraint("Horizontal", 2, 2, 5, 2))
sketch4.addConstraint(Sketcher.Constraint("Equal", 0, 2))
sketch4.addConstraint(Sketcher.Constraint("DistanceX", 4, 1, 4, 2, Q("7 mm")))
sketch4.addConstraint(Sketcher.Constraint("DistanceY", -1, 1, 3, 2, Q("3 mm")))
sketch4.addConstraint(Sketcher.Constraint("Angle", 0, Q("-139.9995 deg")))
sketch4.addConstraint(Sketcher.Constraint("DistanceY", 3, 1, 3, 2, Q("1.5 mm")))
sketch4.addConstraint(Sketcher.Constraint("DistanceX", -1, 1, 2, 2, Q("28.5 mm")))
pocket3 = body.newObject("PartDesign::Pocket", "Pocket002")
pocket3.Profile = sketch4
pocket3.Length = 5
pocket3.Reversed = True

# Sketch on XY plane
sketch5 = body.newObject("Sketcher::SketchObject", "Sketch004")
sketch5.AttachmentSupport = (doc.getObject("XY_Plane"), [""])
sketch5.MapMode = "FlatFace"
sketch5.AttachmentOffset = App.Placement(App.Vector(0, 0, -31.5), App.Rotation())
sketch5.addGeometry(Part.LineSegment(App.Vector(44, 4, 0), App.Vector(58, 4, 0)), False)
sketch5.addGeometry(Part.LineSegment(App.Vector(58, 4, 0), App.Vector(58, -4, 0)), False)
sketch5.addGeometry(Part.LineSegment(App.Vector(58, -4, 0), App.Vector(44, -4, 0)), False)
sketch5.addGeometry(Part.LineSegment(App.Vector(44, -4, 0), App.Vector(44, 4, 0)), False)
sketch5.addGeometry(Part.LineSegment(App.Vector(57, 4, 0), App.Vector(44, 4, 0)), False)
sketch5.addGeometry(Part.LineSegment(App.Vector(44, 4, 0), App.Vector(44, -4, 0)), False)
sketch5.addGeometry(Part.LineSegment(App.Vector(44, -4, 0), App.Vector(57, -4, 0)), False)
sketch5.addGeometry(Part.LineSegment(App.Vector(57, -4, 0), App.Vector(57, 4, 0)), False)
sketch5.addConstraint(Sketcher.Constraint("Coincident", 0, 2, 1, 1))
sketch5.addConstraint(Sketcher.Constraint("Coincident", 1, 2, 2, 1))
sketch5.addConstraint(Sketcher.Constraint("Coincident", 2, 2, 3, 1))
sketch5.addConstraint(Sketcher.Constraint("Coincident", 3, 2, 0, 1))
sketch5.addConstraint(Sketcher.Constraint("Coincident", 4, 2, 5, 1))
sketch5.addConstraint(Sketcher.Constraint("Coincident", 5, 2, 6, 1))
sketch5.addConstraint(Sketcher.Constraint("Coincident", 6, 2, 7, 1))
sketch5.addConstraint(Sketcher.Constraint("Coincident", 7, 2, 4, 1))
sketch5.addConstraint(Sketcher.Constraint("Horizontal", 0))
sketch5.addConstraint(Sketcher.Constraint("Vertical", 1))
sketch5.addConstraint(Sketcher.Constraint("Horizontal", 2))
sketch5.addConstraint(Sketcher.Constraint("Vertical", 3))
sketch5.addConstraint(Sketcher.Constraint("Horizontal", 4))
sketch5.addConstraint(Sketcher.Constraint("Vertical", 5))
sketch5.addConstraint(Sketcher.Constraint("Horizontal", 6))
sketch5.addConstraint(Sketcher.Constraint("Vertical", 7))
sketch5.addConstraint(Sketcher.Constraint("DistanceX", 0, 1, 0, 2, Q("14 mm")))
sketch5.addConstraint(Sketcher.Constraint("DistanceY", 1, 2, 1, 1, Q("8 mm")))
sketch5.addConstraint(Sketcher.Constraint("DistanceX", 3, 2, 4, 2, Q("0.25 mm")))
sketch5.addConstraint(Sketcher.Constraint("DistanceY", 4, 2, 3, 2, Q("0.25 mm")))
sketch5.addConstraint(Sketcher.Constraint("DistanceY", 2, 2, 5, 2, Q("0.25 mm")))
sketch5.addConstraint(Sketcher.Constraint("DistanceX", 6, 2, 1, 2, Q("0.25 mm")))
sketch5.addConstraint(Sketcher.Constraint("DistanceY", -1, 1, 0, 2, Q("4 mm")))
sketch5.addConstraint(Sketcher.Constraint("DistanceX", -1, 1, 0, 2, Q("57.5 mm")))
pocket4 = body.newObject("PartDesign::Pocket", "Pocket003")
pocket4.Profile = sketch5
pocket4.Length = 0.1
pocket4.Reversed = True

# Sketch on YZ plane
sketch6 = body.newObject("Sketcher::SketchObject", "Sketch005")
sketch6.AttachmentSupport = (doc.getObject("YZ_Plane"), [""])
sketch6.MapMode = "FlatFace"
sketch6.AttachmentOffset = App.Placement(App.Vector(0, 0, 70.5), App.Rotation())
sketch6.addGeometry(Part.LineSegment(App.Vector(10, -25.5, 0), App.Vector(10, 25.5, 0)), False)
sketch6.addGeometry(Part.ArcOfCircle(Part.Circle(App.Vector(5, 25.5, 0), App.Vector(0, 0, 1), 5), math.radians(0), math.radians(90)), False)
sketch6.addGeometry(Part.LineSegment(App.Vector(5, 30.5, 0), App.Vector(-5, 30.5, 0)), False)
sketch6.addGeometry(Part.ArcOfCircle(Part.Circle(App.Vector(-5, 25.5, 0), App.Vector(0, 0, 1), 5), math.radians(90), math.radians(180)), False)
sketch6.addGeometry(Part.LineSegment(App.Vector(-10, 25.5, 0), App.Vector(-10, -25.5, 0)), False)
sketch6.addGeometry(Part.ArcOfCircle(Part.Circle(App.Vector(-5, -25.5, 0), App.Vector(0, 0, 1), 5), math.radians(180), math.radians(270)), False)
sketch6.addGeometry(Part.LineSegment(App.Vector(-5, -30.5, 0), App.Vector(5, -30.5, 0)), False)
sketch6.addGeometry(Part.ArcOfCircle(Part.Circle(App.Vector(5, -25.5, 0), App.Vector(0, 0, 1), 5), math.radians(-90), math.radians(0)), False)
sketch6.addGeometry(Part.ArcOfCircle(Part.Circle(App.Vector(5, 25.5, 0), App.Vector(0, 0, 1), 4.8), math.radians(0), math.radians(90)), False)
sketch6.addGeometry(Part.LineSegment(App.Vector(9.8, 25.5, 0), App.Vector(9.8, -25.5, 0)), False)
sketch6.addGeometry(Part.ArcOfCircle(Part.Circle(App.Vector(5, -25.5, 0), App.Vector(0, 0, 1), 4.8), math.radians(-90), math.radians(0)), False)
sketch6.addGeometry(Part.LineSegment(App.Vector(5, -30.2, 0), App.Vector(-5, -30.2, 0)), False)
sketch6.addGeometry(Part.ArcOfCircle(Part.Circle(App.Vector(-5, -25.5, 0), App.Vector(0, 0, 1), 4.8), math.radians(180), math.radians(270)), False)
sketch6.addGeometry(Part.LineSegment(App.Vector(-9.8, -25.5, 0), App.Vector(-9.8, 25.5, 0)), False)
sketch6.addGeometry(Part.ArcOfCircle(Part.Circle(App.Vector(-5, 25.5, 0), App.Vector(0, 0, 1), 4.8), math.radians(90), math.radians(180)), False)
sketch6.addGeometry(Part.LineSegment(App.Vector(-5, 30.2, 0), App.Vector(5, 30.2, 0)), False)
sketch6.addConstraint(Sketcher.Constraint("Tangent", 0, 2, 1, 1))
sketch6.addConstraint(Sketcher.Constraint("Tangent", 1, 2, 2, 1))
sketch6.addConstraint(Sketcher.Constraint("Tangent", 2, 2, 3, 1))
sketch6.addConstraint(Sketcher.Constraint("Tangent", 3, 2, 4, 1))
sketch6.addConstraint(Sketcher.Constraint("Tangent", 4, 2, 5, 1))
sketch6.addConstraint(Sketcher.Constraint("Tangent", 5, 2, 6, 1))
sketch6.addConstraint(Sketcher.Constraint("Tangent", 6, 2, 7, 1))
sketch6.addConstraint(Sketcher.Constraint("Tangent", 7, 2, 0, 1))
sketch6.addConstraint(Sketcher.Constraint("Tangent", 8, 1, 9, 1))
sketch6.addConstraint(Sketcher.Constraint("Tangent", 9, 2, 10, 2))
sketch6.addConstraint(Sketcher.Constraint("Tangent", 10, 1, 11, 1))
sketch6.addConstraint(Sketcher.Constraint("Tangent", 11, 2, 12, 2))
sketch6.addConstraint(Sketcher.Constraint("Tangent", 12, 1, 13, 1))
sketch6.addConstraint(Sketcher.Constraint("Tangent", 13, 2, 14, 2))
sketch6.addConstraint(Sketcher.Constraint("Tangent", 14, 1, 15, 1))
sketch6.addConstraint(Sketcher.Constraint("Tangent", 15, 2, 8, 2))
sketch6.addConstraint(Sketcher.Constraint("Vertical", 0))
sketch6.addConstraint(Sketcher.Constraint("Horizontal", 2))
sketch6.addConstraint(Sketcher.Constraint("Vertical", 4))
sketch6.addConstraint(Sketcher.Constraint("Horizontal", 6))
sketch6.addConstraint(Sketcher.Constraint("Vertical", 9))
sketch6.addConstraint(Sketcher.Constraint("Horizontal", 11))
sketch6.addConstraint(Sketcher.Constraint("Vertical", 13))
sketch6.addConstraint(Sketcher.Constraint("Horizontal", 15))
sketch6.addConstraint(Sketcher.Constraint("Coincident", 8, 3, 1, 3))
sketch6.addConstraint(Sketcher.Constraint("Coincident", 10, 3, 7, 3))
sketch6.addConstraint(Sketcher.Constraint("Coincident", 12, 3, 5, 3))
sketch6.addConstraint(Sketcher.Constraint("Equal", 1, 3))
sketch6.addConstraint(Sketcher.Constraint("Equal", 3, 5))
sketch6.addConstraint(Sketcher.Constraint("Equal", 5, 7))
sketch6.addConstraint(Sketcher.Constraint("Equal", 12, 14))
sketch6.addConstraint(Sketcher.Constraint("Symmetric", 1, 3, 5, 3, -1, 1))
sketch6.addConstraint(Sketcher.Constraint("Radius", 1, Q("5 mm")))
sketch6.addConstraint(Sketcher.Constraint("DistanceX", 2, 2, 2, 1, Q("10 mm")))
sketch6.addConstraint(Sketcher.Constraint("DistanceY", 0, 1, 0, 2, Q("51 mm")))
sketch6.addConstraint(Sketcher.Constraint("Radius", 8, Q("4.75 mm")))
pocket5 = body.newObject("PartDesign::Pocket", "Pocket004")
pocket5.Profile = sketch6
pocket5.Length = 0.1
doc.recompute()

mirrored = body.newObject("PartDesign::Mirrored", "Mirrored")
mirrored.Originals = [pocket5]
mirrored.MirrorPlane = (doc.getObject("YZ_Plane"), [""])
body.Tip = mirrored

doc.recompute()
